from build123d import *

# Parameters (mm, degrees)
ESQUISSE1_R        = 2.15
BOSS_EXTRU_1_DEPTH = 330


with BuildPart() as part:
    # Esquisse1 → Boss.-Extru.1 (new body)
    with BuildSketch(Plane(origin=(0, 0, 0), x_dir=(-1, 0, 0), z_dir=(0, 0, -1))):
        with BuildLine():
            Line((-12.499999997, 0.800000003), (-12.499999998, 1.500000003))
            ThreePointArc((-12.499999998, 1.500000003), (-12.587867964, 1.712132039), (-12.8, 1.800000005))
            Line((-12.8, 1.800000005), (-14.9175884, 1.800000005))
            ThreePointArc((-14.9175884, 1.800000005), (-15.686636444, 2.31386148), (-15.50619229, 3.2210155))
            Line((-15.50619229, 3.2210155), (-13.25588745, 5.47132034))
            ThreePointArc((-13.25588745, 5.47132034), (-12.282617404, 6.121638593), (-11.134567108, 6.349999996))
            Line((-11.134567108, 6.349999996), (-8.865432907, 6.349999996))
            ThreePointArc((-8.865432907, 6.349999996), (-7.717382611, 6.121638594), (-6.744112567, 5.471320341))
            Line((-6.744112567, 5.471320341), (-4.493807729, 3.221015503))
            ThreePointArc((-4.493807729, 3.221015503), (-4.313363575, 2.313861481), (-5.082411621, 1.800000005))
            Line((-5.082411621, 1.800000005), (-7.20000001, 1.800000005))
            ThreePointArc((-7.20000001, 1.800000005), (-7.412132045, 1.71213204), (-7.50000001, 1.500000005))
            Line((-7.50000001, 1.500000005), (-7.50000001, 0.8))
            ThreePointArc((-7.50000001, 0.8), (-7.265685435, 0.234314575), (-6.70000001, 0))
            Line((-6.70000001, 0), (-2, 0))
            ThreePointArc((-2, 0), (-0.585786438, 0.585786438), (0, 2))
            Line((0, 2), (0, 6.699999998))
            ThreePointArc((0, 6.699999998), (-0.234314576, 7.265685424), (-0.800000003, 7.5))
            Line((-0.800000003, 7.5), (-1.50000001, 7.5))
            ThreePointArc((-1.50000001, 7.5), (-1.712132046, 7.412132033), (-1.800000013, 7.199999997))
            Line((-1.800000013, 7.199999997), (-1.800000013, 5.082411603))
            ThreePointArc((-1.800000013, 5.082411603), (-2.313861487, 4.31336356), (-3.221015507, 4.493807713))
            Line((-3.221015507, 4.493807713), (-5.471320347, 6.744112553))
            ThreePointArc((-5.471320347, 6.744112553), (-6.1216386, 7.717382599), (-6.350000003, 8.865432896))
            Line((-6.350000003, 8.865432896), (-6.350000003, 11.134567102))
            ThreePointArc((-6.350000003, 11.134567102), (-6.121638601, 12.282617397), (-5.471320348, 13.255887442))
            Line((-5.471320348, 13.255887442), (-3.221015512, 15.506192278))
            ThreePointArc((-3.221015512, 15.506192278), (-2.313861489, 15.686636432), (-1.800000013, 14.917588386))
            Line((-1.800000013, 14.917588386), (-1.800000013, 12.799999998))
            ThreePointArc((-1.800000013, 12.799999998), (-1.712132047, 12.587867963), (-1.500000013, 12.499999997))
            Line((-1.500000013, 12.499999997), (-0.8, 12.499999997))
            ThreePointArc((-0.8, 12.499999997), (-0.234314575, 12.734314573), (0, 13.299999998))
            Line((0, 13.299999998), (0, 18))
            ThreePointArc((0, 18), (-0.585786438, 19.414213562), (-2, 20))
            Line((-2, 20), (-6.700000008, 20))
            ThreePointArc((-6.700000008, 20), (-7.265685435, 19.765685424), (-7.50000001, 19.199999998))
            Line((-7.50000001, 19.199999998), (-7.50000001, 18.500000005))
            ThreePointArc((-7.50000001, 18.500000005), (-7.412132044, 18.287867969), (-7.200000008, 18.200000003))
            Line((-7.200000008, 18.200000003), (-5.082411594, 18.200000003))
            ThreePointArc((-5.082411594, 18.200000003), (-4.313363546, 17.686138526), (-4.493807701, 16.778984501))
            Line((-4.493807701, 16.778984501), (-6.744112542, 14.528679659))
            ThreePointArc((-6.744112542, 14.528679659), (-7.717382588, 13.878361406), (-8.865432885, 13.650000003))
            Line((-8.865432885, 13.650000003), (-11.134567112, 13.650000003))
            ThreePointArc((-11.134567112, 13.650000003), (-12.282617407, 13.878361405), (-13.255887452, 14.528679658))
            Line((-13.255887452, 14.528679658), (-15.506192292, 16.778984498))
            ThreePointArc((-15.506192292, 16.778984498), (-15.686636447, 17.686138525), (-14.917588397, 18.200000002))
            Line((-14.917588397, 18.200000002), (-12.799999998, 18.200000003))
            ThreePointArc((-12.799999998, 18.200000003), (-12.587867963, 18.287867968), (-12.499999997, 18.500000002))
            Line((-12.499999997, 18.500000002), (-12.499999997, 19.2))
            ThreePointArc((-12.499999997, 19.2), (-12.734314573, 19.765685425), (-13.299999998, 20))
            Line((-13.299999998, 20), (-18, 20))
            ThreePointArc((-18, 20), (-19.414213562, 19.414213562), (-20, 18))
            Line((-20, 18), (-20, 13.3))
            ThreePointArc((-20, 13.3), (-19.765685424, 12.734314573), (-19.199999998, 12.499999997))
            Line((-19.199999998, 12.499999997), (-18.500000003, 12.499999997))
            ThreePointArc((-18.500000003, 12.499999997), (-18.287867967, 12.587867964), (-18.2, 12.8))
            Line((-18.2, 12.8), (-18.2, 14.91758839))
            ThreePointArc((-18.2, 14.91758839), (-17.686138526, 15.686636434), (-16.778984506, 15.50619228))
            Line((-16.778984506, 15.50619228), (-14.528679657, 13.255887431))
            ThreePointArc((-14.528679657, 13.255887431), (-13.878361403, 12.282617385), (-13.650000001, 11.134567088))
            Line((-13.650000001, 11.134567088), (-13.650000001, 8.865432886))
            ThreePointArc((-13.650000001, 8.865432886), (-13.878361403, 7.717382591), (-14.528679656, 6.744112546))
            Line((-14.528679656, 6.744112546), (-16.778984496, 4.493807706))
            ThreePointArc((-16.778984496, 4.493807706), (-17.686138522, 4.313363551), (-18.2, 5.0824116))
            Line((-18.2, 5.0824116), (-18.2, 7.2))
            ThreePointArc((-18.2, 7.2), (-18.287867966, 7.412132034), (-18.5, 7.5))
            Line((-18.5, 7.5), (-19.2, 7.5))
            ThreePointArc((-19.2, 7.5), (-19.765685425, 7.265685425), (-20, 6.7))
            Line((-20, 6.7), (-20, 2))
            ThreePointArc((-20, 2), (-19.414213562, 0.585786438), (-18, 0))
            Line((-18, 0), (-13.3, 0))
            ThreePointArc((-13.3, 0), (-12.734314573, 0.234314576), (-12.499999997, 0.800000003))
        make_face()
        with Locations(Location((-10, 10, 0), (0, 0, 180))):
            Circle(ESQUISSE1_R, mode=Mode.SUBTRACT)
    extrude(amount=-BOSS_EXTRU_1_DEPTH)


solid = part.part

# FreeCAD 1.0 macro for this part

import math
import FreeCAD as App
import Part
import Sketcher

V = App.Vector

doc = App.newDocument("Part")
body = doc.addObject("PartDesign::Body", "Body")

sketch1 = body.newObject("Sketcher::SketchObject", "Sketch")
sketch1.AttachmentSupport = (doc.getObject("XY_Plane"), [""])
sketch1.MapMode = "FlatFace"
sketch1.addGeometry(Part.LineSegment(V(12.5, 0.8, 0), V(12.5, 1.5, 0)), False)
sketch1.addGeometry(Part.ArcOfCircle(Part.Circle(V(12.8, 1.5, 0), V(0, 0, 1), 0.3), math.radians(90), math.radians(180)), False)
sketch1.addGeometry(Part.LineSegment(V(12.8, 1.8, 0), V(14.917588, 1.8, 0)), False)
sketch1.addGeometry(Part.ArcOfCircle(Part.Circle(V(14.917588, 2.632412, 0), V(0, 0, 1), 0.832412), math.radians(-90), math.radians(45)), False)
sketch1.addGeometry(Part.LineSegment(V(15.506192, 3.221016, 0), V(13.255887, 5.47132, 0)), False)
sketch1.addGeometry(Part.ArcOfCircle(Part.Circle(V(11.134567, 3.35, 0), V(0, 0, 1), 3), math.radians(45), math.radians(90)), False)
sketch1.addGeometry(Part.LineSegment(V(11.134567, 6.35, 0), V(8.865433, 6.35, 0)), False)
sketch1.addGeometry(Part.ArcOfCircle(Part.Circle(V(8.865433, 3.35, 0), V(0, 0, 1), 3), math.radians(90), math.radians(135)), False)
sketch1.addGeometry(Part.LineSegment(V(6.744113, 5.47132, 0), V(4.493808, 3.221016, 0)), False)
sketch1.addGeometry(Part.ArcOfCircle(Part.Circle(V(5.082412, 2.632412, 0), V(0, 0, 1), 0.832412), math.radians(135), math.radians(270)), False)
sketch1.addGeometry(Part.LineSegment(V(5.082412, 1.8, 0), V(7.2, 1.8, 0)), False)
sketch1.addGeometry(Part.ArcOfCircle(Part.Circle(V(7.2, 1.5, 0), V(0, 0, 1), 0.3), math.radians(0), math.radians(90)), False)
sketch1.addGeometry(Part.LineSegment(V(7.5, 1.5, 0), V(7.5, 0.8, 0)), False)
sketch1.addGeometry(Part.ArcOfCircle(Part.Circle(V(6.7, 0.8, 0), V(0, 0, 1), 0.8), math.radians(-90), math.radians(0)), False)
sketch1.addGeometry(Part.LineSegment(V(6.7, 0, 0), V(2, 0, 0)), False)
sketch1.addGeometry(Part.ArcOfCircle(Part.Circle(V(2, 2, 0), V(0, 0, 1), 2), math.radians(-180), math.radians(-90)), False)
sketch1.addGeometry(Part.LineSegment(V(0, 2, 0), V(0, 6.7, 0)), False)
sketch1.addGeometry(Part.ArcOfCircle(Part.Circle(V(0.8, 6.7, 0), V(0, 0, 1), 0.8), math.radians(90), math.radians(180)), False)
sketch1.addGeometry(Part.LineSegment(V(0.8, 7.5, 0), V(1.5, 7.5, 0)), False)
sketch1.addGeometry(Part.ArcOfCircle(Part.Circle(V(1.5, 7.2, 0), V(0, 0, 1), 0.3), math.radians(0), math.radians(90)), False)
sketch1.addGeometry(Part.LineSegment(V(1.8, 7.2, 0), V(1.8, 5.082412, 0)), False)
sketch1.addGeometry(Part.ArcOfCircle(Part.Circle(V(2.632412, 5.082412, 0), V(0, 0, 1), 0.832412), math.radians(-180), math.radians(-45)), False)
sketch1.addGeometry(Part.LineSegment(V(3.221016, 4.493808, 0), V(5.47132, 6.744113, 0)), False)
sketch1.addGeometry(Part.ArcOfCircle(Part.Circle(V(3.35, 8.865433, 0), V(0, 0, 1), 3), math.radians(-45), math.radians(0)), False)
sketch1.addGeometry(Part.LineSegment(V(6.35, 8.865433, 0), V(6.35, 11.134567, 0)), False)
sketch1.addGeometry(Part.ArcOfCircle(Part.Circle(V(3.35, 11.134567, 0), V(0, 0, 1), 3), math.radians(0), math.radians(45)), False)
sketch1.addGeometry(Part.LineSegment(V(5.47132, 13.255887, 0), V(3.221016, 15.506192, 0)), False)
sketch1.addGeometry(Part.ArcOfCircle(Part.Circle(V(2.632412, 14.917588, 0), V(0, 0, 1), 0.832412), math.radians(45), math.radians(180)), False)
sketch1.addGeometry(Part.LineSegment(V(1.8, 14.917588, 0), V(1.8, 12.8, 0)), False)
sketch1.addGeometry(Part.ArcOfCircle(Part.Circle(V(1.5, 12.8, 0), V(0, 0, 1), 0.3), math.radians(-90), math.radians(0)), False)
sketch1.addGeometry(Part.LineSegment(V(1.5, 12.5, 0), V(0.8, 12.5, 0)), False)
sketch1.addGeometry(Part.ArcOfCircle(Part.Circle(V(0.8, 13.3, 0), V(0, 0, 1), 0.8), math.radians(-180), math.radians(-90)), False)
sketch1.addGeometry(Part.LineSegment(V(0, 13.3, 0), V(0, 18, 0)), False)
sketch1.addGeometry(Part.ArcOfCircle(Part.Circle(V(2, 18, 0), V(0, 0, 1), 2), math.radians(90), math.radians(180)), False)
sketch1.addGeometry(Part.LineSegment(V(2, 20, 0), V(6.7, 20, 0)), False)
sketch1.addGeometry(Part.ArcOfCircle(Part.Circle(V(6.7, 19.2, 0), V(0, 0, 1), 0.8), math.radians(0), math.radians(90)), False)
sketch1.addGeometry(Part.LineSegment(V(7.5, 19.2, 0), V(7.5, 18.5, 0)), False)
sketch1.addGeometry(Part.ArcOfCircle(Part.Circle(V(7.2, 18.5, 0), V(0, 0, 1), 0.3), math.radians(-90), math.radians(0)), False)
sketch1.addGeometry(Part.LineSegment(V(7.2, 18.2, 0), V(5.082412, 18.2, 0)), False)
sketch1.addGeometry(Part.ArcOfCircle(Part.Circle(V(5.082412, 17.367588, 0), V(0, 0, 1), 0.832412), math.radians(90), math.radians(225)), False)
sketch1.addGeometry(Part.LineSegment(V(4.493808, 16.778985, 0), V(6.744113, 14.52868, 0)), False)
sketch1.addGeometry(Part.ArcOfCircle(Part.Circle(V(8.865433, 16.65, 0), V(0, 0, 1), 3), math.radians(-135), math.radians(-90)), False)
sketch1.addGeometry(Part.LineSegment(V(8.865433, 13.65, 0), V(11.134567, 13.65, 0)), False)
sketch1.addGeometry(Part.ArcOfCircle(Part.Circle(V(11.134567, 16.65, 0), V(0, 0, 1), 3), math.radians(-90), math.radians(-45)), False)
sketch1.addGeometry(Part.LineSegment(V(13.255887, 14.52868, 0), V(15.506192, 16.778984, 0)), False)
sketch1.addGeometry(Part.ArcOfCircle(Part.Circle(V(14.917588, 17.367588, 0), V(0, 0, 1), 0.832412), math.radians(-45), math.radians(90)), False)
sketch1.addGeometry(Part.LineSegment(V(14.917588, 18.2, 0), V(12.8, 18.2, 0)), False)
sketch1.addGeometry(Part.ArcOfCircle(Part.Circle(V(12.8, 18.5, 0), V(0, 0, 1), 0.3), math.radians(-180), math.radians(-90)), False)
sketch1.addGeometry(Part.LineSegment(V(12.5, 18.5, 0), V(12.5, 19.2, 0)), False)
sketch1.addGeometry(Part.ArcOfCircle(Part.Circle(V(13.3, 19.2, 0), V(0, 0, 1), 0.8), math.radians(90), math.radians(180)), False)
sketch1.addGeometry(Part.LineSegment(V(13.3, 20, 0), V(18, 20, 0)), False)
sketch1.addGeometry(Part.ArcOfCircle(Part.Circle(V(18, 18, 0), V(0, 0, 1), 2), math.radians(0), math.radians(90)), False)
sketch1.addGeometry(Part.LineSegment(V(20, 18, 0), V(20, 13.3, 0)), False)
sketch1.addGeometry(Part.ArcOfCircle(Part.Circle(V(19.2, 13.3, 0), V(0, 0, 1), 0.8), math.radians(-90), math.radians(0)), False)
sketch1.addGeometry(Part.LineSegment(V(19.2, 12.5, 0), V(18.5, 12.5, 0)), False)
sketch1.addGeometry(Part.ArcOfCircle(Part.Circle(V(18.5, 12.8, 0), V(0, 0, 1), 0.3), math.radians(-180), math.radians(-90)), False)
sketch1.addGeometry(Part.LineSegment(V(18.2, 12.8, 0), V(18.2, 14.917588, 0)), False)
sketch1.addGeometry(Part.ArcOfCircle(Part.Circle(V(17.367588, 14.917588, 0), V(0, 0, 1), 0.832412), math.radians(0), math.radians(135)), False)
sketch1.addGeometry(Part.LineSegment(V(16.778985, 15.506192, 0), V(14.52868, 13.255887, 0)), False)
sketch1.addGeometry(Part.ArcOfCircle(Part.Circle(V(16.65, 11.134567, 0), V(0, 0, 1), 3), math.radians(135), math.radians(180)), False)
sketch1.addGeometry(Part.LineSegment(V(13.65, 11.134567, 0), V(13.65, 8.865433, 0)), False)
sketch1.addGeometry(Part.ArcOfCircle(Part.Circle(V(16.65, 8.865433, 0), V(0, 0, 1), 3), math.radians(180), math.radians(225)), False)
sketch1.addGeometry(Part.LineSegment(V(14.52868, 6.744113, 0), V(16.778984, 4.493808, 0)), False)
sketch1.addGeometry(Part.ArcOfCircle(Part.Circle(V(17.367588, 5.082412, 0), V(0, 0, 1), 0.832412), math.radians(-135), math.radians(0)), False)
sketch1.addGeometry(Part.LineSegment(V(18.2, 5.082412, 0), V(18.2, 7.2, 0)), False)
sketch1.addGeometry(Part.ArcOfCircle(Part.Circle(V(18.5, 7.2, 0), V(0, 0, 1), 0.3), math.radians(90), math.radians(180)), False)
sketch1.addGeometry(Part.LineSegment(V(18.5, 7.5, 0), V(19.2, 7.5, 0)), False)
sketch1.addGeometry(Part.ArcOfCircle(Part.Circle(V(19.2, 6.7, 0), V(0, 0, 1), 0.8), math.radians(0), math.radians(90)), False)
sketch1.addGeometry(Part.LineSegment(V(20, 6.7, 0), V(20, 2, 0)), False)
sketch1.addGeometry(Part.ArcOfCircle(Part.Circle(V(18, 2, 0), V(0, 0, 1), 2), math.radians(-90), math.radians(0)), False)
sketch1.addGeometry(Part.LineSegment(V(18, 0, 0), V(13.3, 0, 0)), False)
sketch1.addGeometry(Part.ArcOfCircle(Part.Circle(V(13.3, 0.8, 0), V(0, 0, 1), 0.8), math.radians(180), math.radians(270)), False)
sketch1.addGeometry(Part.Circle(V(10, 10, 0), V(0, 0, 1), 2.15), False)
sketch1.addConstraint(Sketcher.Constraint("Tangent", 0, 2, 1, 2))
sketch1.addConstraint(Sketcher.Constraint("Tangent", 1, 1, 2, 1))
sketch1.addConstraint(Sketcher.Constraint("Tangent", 2, 2, 3, 1))
sketch1.addConstraint(Sketcher.Constraint("Tangent", 3, 2, 4, 1))
sketch1.addConstraint(Sketcher.Constraint("Tangent", 4, 2, 5, 1))
sketch1.addConstraint(Sketcher.Constraint("Tangent", 5, 2, 6, 1))
sketch1.addConstraint(Sketcher.Constraint("Tangent", 6, 2, 7, 1))
sketch1.addConstraint(Sketcher.Constraint("Tangent", 7, 2, 8, 1))
sketch1.addConstraint(Sketcher.Constraint("Tangent", 8, 2, 9, 1))
sketch1.addConstraint(Sketcher.Constraint("Tangent", 9, 2, 10, 1))
sketch1.addConstraint(Sketcher.Constraint("Tangent", 10, 2, 11, 2))
sketch1.addConstraint(Sketcher.Constraint("Tangent", 11, 1, 12, 1))
sketch1.addConstraint(Sketcher.Constraint("Tangent", 12, 2, 13, 2))
sketch1.addConstraint(Sketcher.Constraint("Tangent", 13, 1, 14, 1))
sketch1.addConstraint(Sketcher.Constraint("Tangent", 14, 2, 15, 2))
sketch1.addConstraint(Sketcher.Constraint("Tangent", 15, 1, 16, 1))
sketch1.addConstraint(Sketcher.Constraint("Tangent", 16, 2, 17, 2))
sketch1.addConstraint(Sketcher.Constraint("Tangent", 17, 1, 18, 1))
sketch1.addConstraint(Sketcher.Constraint("Tangent", 18, 2, 19, 2))
sketch1.addConstraint(Sketcher.Constraint("Tangent", 19, 1, 20, 1))
sketch1.addConstraint(Sketcher.Constraint("Tangent", 20, 2, 21, 1))
sketch1.addConstraint(Sketcher.Constraint("Tangent", 21, 2, 22, 1))
sketch1.addConstraint(Sketcher.Constraint("Tangent", 22, 2, 23, 1))
sketch1.addConstraint(Sketcher.Constraint("Tangent", 23, 2, 24, 1))
sketch1.addConstraint(Sketcher.Constraint("Tangent", 24, 2, 25, 1))
sketch1.addConstraint(Sketcher.Constraint("Tangent", 25, 2, 26, 1))
sketch1.addConstraint(Sketcher.Constraint("Tangent", 26, 2, 27, 1))
sketch1.addConstraint(Sketcher.Constraint("Tangent", 27, 2, 28, 1))
sketch1.addConstraint(Sketcher.Constraint("Tangent", 28, 2, 29, 2))
sketch1.addConstraint(Sketcher.Constraint("Tangent", 29, 1, 30, 1))
sketch1.addConstraint(Sketcher.Constraint("Tangent", 30, 2, 31, 2))
sketch1.addConstraint(Sketcher.Constraint("Tangent", 31, 1, 32, 1))
sketch1.addConstraint(Sketcher.Constraint("Tangent", 32, 2, 33, 2))
sketch1.addConstraint(Sketcher.Constraint("Tangent", 33, 1, 34, 1))
sketch1.addConstraint(Sketcher.Constraint("Tangent", 34, 2, 35, 2))
sketch1.addConstraint(Sketcher.Constraint("Tangent", 35, 1, 36, 1))
sketch1.addConstraint(Sketcher.Constraint("Tangent", 36, 2, 37, 2))
sketch1.addConstraint(Sketcher.Constraint("Tangent", 37, 1, 38, 1))
sketch1.addConstraint(Sketcher.Constraint("Tangent", 38, 2, 39, 1))
sketch1.addConstraint(Sketcher.Constraint("Tangent", 39, 2, 40, 1))
sketch1.addConstraint(Sketcher.Constraint("Tangent", 40, 2, 41, 1))
sketch1.addConstraint(Sketcher.Constraint("Tangent", 41, 2, 42, 1))
sketch1.addConstraint(Sketcher.Constraint("Tangent", 42, 2, 43, 1))
sketch1.addConstraint(Sketcher.Constraint("Tangent", 43, 2, 44, 1))
sketch1.addConstraint(Sketcher.Constraint("Tangent", 44, 2, 45, 1))
sketch1.addConstraint(Sketcher.Constraint("Tangent", 45, 2, 46, 1))
sketch1.addConstraint(Sketcher.Constraint("Tangent", 46, 2, 47, 2))
sketch1.addConstraint(Sketcher.Constraint("Tangent", 47, 1, 48, 1))
sketch1.addConstraint(Sketcher.Constraint("Tangent", 48, 2, 49, 2))
sketch1.addConstraint(Sketcher.Constraint("Tangent", 49, 1, 50, 1))
sketch1.addConstraint(Sketcher.Constraint("Tangent", 50, 2, 51, 2))
sketch1.addConstraint(Sketcher.Constraint("Tangent", 51, 1, 52, 1))
sketch1.addConstraint(Sketcher.Constraint("Tangent", 52, 2, 53, 2))
sketch1.addConstraint(Sketcher.Constraint("Tangent", 53, 1, 54, 1))
sketch1.addConstraint(Sketcher.Constraint("Tangent", 54, 2, 55, 2))
sketch1.addConstraint(Sketcher.Constraint("Tangent", 55, 1, 56, 1))
sketch1.addConstraint(Sketcher.Constraint("Tangent", 56, 2, 57, 1))
sketch1.addConstraint(Sketcher.Constraint("Tangent", 57, 2, 58, 1))
sketch1.addConstraint(Sketcher.Constraint("Tangent", 58, 2, 59, 1))
sketch1.addConstraint(Sketcher.Constraint("Tangent", 59, 2, 60, 1))
sketch1.addConstraint(Sketcher.Constraint("Tangent", 60, 2, 61, 1))
sketch1.addConstraint(Sketcher.Constraint("Tangent", 61, 2, 62, 1))
sketch1.addConstraint(Sketcher.Constraint("Tangent", 62, 2, 63, 1))
sketch1.addConstraint(Sketcher.Constraint("Tangent", 63, 2, 64, 1))
sketch1.addConstraint(Sketcher.Constraint("Tangent", 64, 2, 65, 2))
sketch1.addConstraint(Sketcher.Constraint("Tangent", 65, 1, 66, 1))
sketch1.addConstraint(Sketcher.Constraint("Tangent", 66, 2, 67, 2))
sketch1.addConstraint(Sketcher.Constraint("Tangent", 67, 1, 68, 1))
sketch1.addConstraint(Sketcher.Constraint("Tangent", 68, 2, 69, 2))
sketch1.addConstraint(Sketcher.Constraint("Tangent", 69, 1, 70, 1))
sketch1.addConstraint(Sketcher.Constraint("Tangent", 70, 2, 71, 2))
sketch1.addConstraint(Sketcher.Constraint("Tangent", 71, 1, 0, 1))
sketch1.addConstraint(Sketcher.Constraint("Vertical", 0))
sketch1.addConstraint(Sketcher.Constraint("Horizontal", 2))
sketch1.addConstraint(Sketcher.Constraint("Horizontal", 6))
sketch1.addConstraint(Sketcher.Constraint("Horizontal", 10))
sketch1.addConstraint(Sketcher.Constraint("Vertical", 12))
sketch1.addConstraint(Sketcher.Constraint("Horizontal", 14))
sketch1.addConstraint(Sketcher.Constraint("Vertical", 16))
sketch1.addConstraint(Sketcher.Constraint("Horizontal", 18))
sketch1.addConstraint(Sketcher.Constraint("Vertical", 20))
sketch1.addConstraint(Sketcher.Constraint("Vertical", 24))
sketch1.addConstraint(Sketcher.Constraint("Vertical", 28))
sketch1.addConstraint(Sketcher.Constraint("Horizontal", 30))
sketch1.addConstraint(Sketcher.Constraint("Vertical", 32))
sketch1.addConstraint(Sketcher.Constraint("Horizontal", 34))
sketch1.addConstraint(Sketcher.Constraint("Vertical", 36))
sketch1.addConstraint(Sketcher.Constraint("Horizontal", 38))
sketch1.addConstraint(Sketcher.Constraint("Horizontal", 42))
sketch1.addConstraint(Sketcher.Constraint("Horizontal", 46))
sketch1.addConstraint(Sketcher.Constraint("Vertical", 48))
sketch1.addConstraint(Sketcher.Constraint("Horizontal", 50))
sketch1.addConstraint(Sketcher.Constraint("Vertical", 52))
sketch1.addConstraint(Sketcher.Constraint("Horizontal", 54))
sketch1.addConstraint(Sketcher.Constraint("Vertical", 56))
sketch1.addConstraint(Sketcher.Constraint("Vertical", 60))
sketch1.addConstraint(Sketcher.Constraint("Vertical", 64))
sketch1.addConstraint(Sketcher.Constraint("Horizontal", 66))
sketch1.addConstraint(Sketcher.Constraint("Vertical", 68))
sketch1.addConstraint(Sketcher.Constraint("Horizontal", 70))
sketch1.addConstraint(Sketcher.Constraint("Equal", 5, 7))
sketch1.addConstraint(Sketcher.Constraint("Equal", 3, 9))
sketch1.addConstraint(Sketcher.Constraint("Equal", 1, 11))
sketch1.addConstraint(Sketcher.Constraint("Equal", 13, 17))
sketch1.addConstraint(Sketcher.Constraint("Equal", 11, 19))
sketch1.addConstraint(Sketcher.Constraint("Equal", 9, 21))
sketch1.addConstraint(Sketcher.Constraint("Equal", 7, 23))
sketch1.addConstraint(Sketcher.Constraint("Equal", 23, 25))
sketch1.addConstraint(Sketcher.Constraint("Equal", 21, 27))
sketch1.addConstraint(Sketcher.Constraint("Equal", 19, 29))
sketch1.addConstraint(Sketcher.Constraint("Equal", 17, 31))
sketch1.addConstraint(Sketcher.Constraint("Equal", 15, 33))
sketch1.addConstraint(Sketcher.Constraint("Equal", 31, 35))
sketch1.addConstraint(Sketcher.Constraint("Equal", 29, 37))
sketch1.addConstraint(Sketcher.Constraint("Equal", 27, 39))
sketch1.addConstraint(Sketcher.Constraint("Equal", 25, 41))
sketch1.addConstraint(Sketcher.Constraint("Equal", 41, 43))
sketch1.addConstraint(Sketcher.Constraint("Equal", 39, 45))
sketch1.addConstraint(Sketcher.Constraint("Equal", 37, 47))
sketch1.addConstraint(Sketcher.Constraint("Equal", 35, 49))
sketch1.addConstraint(Sketcher.Constraint("Equal", 33, 51))
sketch1.addConstraint(Sketcher.Constraint("Equal", 49, 53))
sketch1.addConstraint(Sketcher.Constraint("Equal", 47, 55))
sketch1.addConstraint(Sketcher.Constraint("Equal", 45, 57))
sketch1.addConstraint(Sketcher.Constraint("Equal", 43, 59))
sketch1.addConstraint(Sketcher.Constraint("Equal", 59, 61))
sketch1.addConstraint(Sketcher.Constraint("Equal", 57, 63))
sketch1.addConstraint(Sketcher.Constraint("Equal", 55, 65))
sketch1.addConstraint(Sketcher.Constraint("Equal", 53, 67))
sketch1.addConstraint(Sketcher.Constraint("Equal", 51, 69))
sketch1.addConstraint(Sketcher.Constraint("Equal", 67, 71))
sketch1.addConstraint(Sketcher.Constraint("PointOnObject", 13, 1, -1))
sketch1.addConstraint(Sketcher.Constraint("PointOnObject", 15, 1, -2))
sketch1.addConstraint(Sketcher.Constraint("PointOnObject", 31, 1, -2))
sketch1.addConstraint(Sketcher.Constraint("PointOnObject", 69, 1, -1))
sketch1.addConstraint(Sketcher.Constraint("Perpendicular", 4, 8))
sketch1.addConstraint(Sketcher.Constraint("Parallel", 8, 22))
sketch1.addConstraint(Sketcher.Constraint("Perpendicular", 22, 26))
sketch1.addConstraint(Sketcher.Constraint("Parallel", 26, 40))
sketch1.addConstraint(Sketcher.Constraint("Perpendicular", 40, 44))
sketch1.addConstraint(Sketcher.Constraint("Parallel", 44, 58))
sketch1.addConstraint(Sketcher.Constraint("Perpendicular", 58, 62))
sketch1.addConstraint(Sketcher.Constraint("Horizontal", 3, 3, 9, 3))
sketch1.addConstraint(Sketcher.Constraint("Horizontal", 39, 3, 45, 3))
sketch1.addConstraint(Sketcher.Constraint("Horizontal", 35, 3, 49, 3))
sketch1.addConstraint(Sketcher.Constraint("Horizontal", 31, 3, 53, 3))
sketch1.addConstraint(Sketcher.Constraint("Horizontal", 27, 3, 57, 3))
sketch1.addConstraint(Sketcher.Constraint("Horizontal", 25, 3, 59, 3))
sketch1.addConstraint(Sketcher.Constraint("Horizontal", 23, 3, 61, 3))
sketch1.addConstraint(Sketcher.Constraint("Horizontal", 21, 3, 63, 3))
sketch1.addConstraint(Sketcher.Constraint("Horizontal", 19, 3, 65, 3))
sketch1.addConstraint(Sketcher.Constraint("Horizontal", 4, 2, 7, 2))
sketch1.addConstraint(Sketcher.Constraint("Vertical", 21, 3, 27, 3))
sketch1.addConstraint(Sketcher.Constraint("Vertical", 13, 3, 35, 3))
sketch1.addConstraint(Sketcher.Constraint("Vertical", 9, 3, 39, 3))
sketch1.addConstraint(Sketcher.Constraint("Vertical", 7, 3, 41, 3))
sketch1.addConstraint(Sketcher.Constraint("Vertical", 5, 3, 43, 3))
sketch1.addConstraint(Sketcher.Constraint("Vertical", 1, 3, 47, 3))
sketch1.addConstraint(Sketcher.Constraint("Vertical", 53, 3, 67, 3))
sketch1.addConstraint(Sketcher.Constraint("Equal", 2, 10))
sketch1.addConstraint(Sketcher.Constraint("Equal", 34, 50))
sketch1.addConstraint(Sketcher.Constraint("Equal", 30, 54))
sketch1.addConstraint(Sketcher.Constraint("Equal", 66, 0))
sketch1.addConstraint(Sketcher.Constraint("Equal", 70, 16))
sketch1.addConstraint(Sketcher.Constraint("Equal", 46, 20))
sketch1.addConstraint(Sketcher.Constraint("Equal", 42, 24))
sketch1.addConstraint(Sketcher.Constraint("Equal", 20, 28))
sketch1.addConstraint(Sketcher.Constraint("Equal", 16, 32))
sketch1.addConstraint(Sketcher.Constraint("Equal", 12, 36))
sketch1.addConstraint(Sketcher.Constraint("Equal", 8, 22))
sketch1.addConstraint(Sketcher.Constraint("Radius", 5, 3.0))
sketch1.addConstraint(Sketcher.Constraint("Radius", 15, 2.0))
sketch1.addConstraint(Sketcher.Constraint("Diameter", 72, 4.3))
sketch1.addConstraint(Sketcher.Constraint("Radius", 1, 0.3))
sketch1.addConstraint(Sketcher.Constraint("Radius", 13, 0.8))
sketch1.addConstraint(Sketcher.Constraint("DistanceX", 14, 2, 14, 1, 4.7))
sketch1.addConstraint(Sketcher.Constraint("DistanceX", 18, 1, 18, 2, 0.7))
sketch1.addConstraint(Sketcher.Constraint("DistanceY", -1, 1, 33, 3, 18.0))
sketch1.addConstraint(Sketcher.Constraint("DistanceX", -1, 1, 72, 3, 10.0))
sketch1.addConstraint(Sketcher.Constraint("DistanceY", -1, 1, 72, 3, 10.0))
sketch1.addConstraint(Sketcher.Constraint("DistanceY", -1, 1, 5, 3, 3.35))
sketch1.addConstraint(Sketcher.Constraint("Radius", 3, 0.832412))
sketch1.addConstraint(Sketcher.Constraint("DistanceX", 2, 1, 2, 2, 2.117588))
pad1 = body.newObject("PartDesign::Pad", "Pad")
pad1.Profile = sketch1
pad1.Length = 330

doc.recompute()
